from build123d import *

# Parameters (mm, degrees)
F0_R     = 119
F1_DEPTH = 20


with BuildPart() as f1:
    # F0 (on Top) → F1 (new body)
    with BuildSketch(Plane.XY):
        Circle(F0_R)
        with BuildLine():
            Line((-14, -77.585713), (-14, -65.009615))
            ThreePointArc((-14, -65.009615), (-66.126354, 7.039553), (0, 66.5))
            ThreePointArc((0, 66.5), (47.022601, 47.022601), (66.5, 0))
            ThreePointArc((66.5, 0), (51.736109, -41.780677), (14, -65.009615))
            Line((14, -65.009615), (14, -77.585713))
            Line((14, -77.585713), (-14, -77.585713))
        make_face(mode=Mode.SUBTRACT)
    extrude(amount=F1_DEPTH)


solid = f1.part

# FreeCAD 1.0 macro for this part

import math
import FreeCAD as App
import Part
import Sketcher
from FreeCAD import Vector

doc = App.newDocument("Part")
body = doc.addObject("PartDesign::Body", "Body")

sketch1 = doc.addObject("Sketcher::SketchObject", "Sketch")
body.addObject(sketch1)
sketch1.AttachmentSupport = (doc.XY_Plane, [""])
sketch1.MapMode = "FlatFace"
sketch1.addGeometry([
    Part.Circle(Vector(0, 0, 0), Vector(0, 0, 1), 119),
    Part.LineSegment(Vector(14, -78, 0), Vector(-14, -78, 0)),
    Part.LineSegment(Vector(-14, -78, 0), Vector(-14, -65, 0)),
    Part.ArcOfCircle(Part.Circle(Vector(0, 0, 0), Vector(0, 0, 1), 67), math.radians(90), math.radians(258)),
    Part.ArcOfCircle(Part.Circle(Vector(0, 0, 0), Vector(0, 0, 1), 66), math.radians(0), math.radians(90)),
    Part.ArcOfCircle(Part.Circle(Vector(0, 0, 0), Vector(0, 0, 1), 67), math.radians(-78), math.radians(0)),
    Part.LineSegment(Vector(14, -65, 0), Vector(14, -78, 0)),
], False)
sketch1.addConstraint([
    Sketcher.Constraint("Coincident", 1, 2, 2, 1),
    Sketcher.Constraint("Coincident", 2, 2, 3, 2),
    Sketcher.Constraint("Tangent", 3, 1, 4, 2),
    Sketcher.Constraint("Tangent", 4, 1, 5, 2),
    Sketcher.Constraint("Coincident", 5, 1, 6, 1),
    Sketcher.Constraint("Coincident", 6, 2, 1, 1),
    Sketcher.Constraint("Horizontal", 1),
    Sketcher.Constraint("Vertical", 2),
    Sketcher.Constraint("Vertical", 6),
    Sketcher.Constraint("Coincident", 0, 3, -1, 1),
    Sketcher.Constraint("Coincident", 3, 3, -1, 1),
    Sketcher.Constraint("Coincident", 5, 3, -1, 1),
    Sketcher.Constraint("PointOnObject", 3, 1, -2),
    Sketcher.Constraint("PointOnObject", 4, 1, -1),
    Sketcher.Constraint("Horizontal", 2, 2, 5, 1),
    Sketcher.Constraint("Diameter", 0, 238.0),
    Sketcher.Constraint("Radius", 3, 66.5),
    Sketcher.Constraint("DistanceX", 1, 2, 1, 1, 28.0),
    Sketcher.Constraint("DistanceY", 2, 1, 2, 2, 12.576098),
])
pad1 = doc.addObject("PartDesign::Pad", "Pad")
body.addObject(pad1)
pad1.Profile = sketch1
pad1.Length = 20

doc.recompute()
